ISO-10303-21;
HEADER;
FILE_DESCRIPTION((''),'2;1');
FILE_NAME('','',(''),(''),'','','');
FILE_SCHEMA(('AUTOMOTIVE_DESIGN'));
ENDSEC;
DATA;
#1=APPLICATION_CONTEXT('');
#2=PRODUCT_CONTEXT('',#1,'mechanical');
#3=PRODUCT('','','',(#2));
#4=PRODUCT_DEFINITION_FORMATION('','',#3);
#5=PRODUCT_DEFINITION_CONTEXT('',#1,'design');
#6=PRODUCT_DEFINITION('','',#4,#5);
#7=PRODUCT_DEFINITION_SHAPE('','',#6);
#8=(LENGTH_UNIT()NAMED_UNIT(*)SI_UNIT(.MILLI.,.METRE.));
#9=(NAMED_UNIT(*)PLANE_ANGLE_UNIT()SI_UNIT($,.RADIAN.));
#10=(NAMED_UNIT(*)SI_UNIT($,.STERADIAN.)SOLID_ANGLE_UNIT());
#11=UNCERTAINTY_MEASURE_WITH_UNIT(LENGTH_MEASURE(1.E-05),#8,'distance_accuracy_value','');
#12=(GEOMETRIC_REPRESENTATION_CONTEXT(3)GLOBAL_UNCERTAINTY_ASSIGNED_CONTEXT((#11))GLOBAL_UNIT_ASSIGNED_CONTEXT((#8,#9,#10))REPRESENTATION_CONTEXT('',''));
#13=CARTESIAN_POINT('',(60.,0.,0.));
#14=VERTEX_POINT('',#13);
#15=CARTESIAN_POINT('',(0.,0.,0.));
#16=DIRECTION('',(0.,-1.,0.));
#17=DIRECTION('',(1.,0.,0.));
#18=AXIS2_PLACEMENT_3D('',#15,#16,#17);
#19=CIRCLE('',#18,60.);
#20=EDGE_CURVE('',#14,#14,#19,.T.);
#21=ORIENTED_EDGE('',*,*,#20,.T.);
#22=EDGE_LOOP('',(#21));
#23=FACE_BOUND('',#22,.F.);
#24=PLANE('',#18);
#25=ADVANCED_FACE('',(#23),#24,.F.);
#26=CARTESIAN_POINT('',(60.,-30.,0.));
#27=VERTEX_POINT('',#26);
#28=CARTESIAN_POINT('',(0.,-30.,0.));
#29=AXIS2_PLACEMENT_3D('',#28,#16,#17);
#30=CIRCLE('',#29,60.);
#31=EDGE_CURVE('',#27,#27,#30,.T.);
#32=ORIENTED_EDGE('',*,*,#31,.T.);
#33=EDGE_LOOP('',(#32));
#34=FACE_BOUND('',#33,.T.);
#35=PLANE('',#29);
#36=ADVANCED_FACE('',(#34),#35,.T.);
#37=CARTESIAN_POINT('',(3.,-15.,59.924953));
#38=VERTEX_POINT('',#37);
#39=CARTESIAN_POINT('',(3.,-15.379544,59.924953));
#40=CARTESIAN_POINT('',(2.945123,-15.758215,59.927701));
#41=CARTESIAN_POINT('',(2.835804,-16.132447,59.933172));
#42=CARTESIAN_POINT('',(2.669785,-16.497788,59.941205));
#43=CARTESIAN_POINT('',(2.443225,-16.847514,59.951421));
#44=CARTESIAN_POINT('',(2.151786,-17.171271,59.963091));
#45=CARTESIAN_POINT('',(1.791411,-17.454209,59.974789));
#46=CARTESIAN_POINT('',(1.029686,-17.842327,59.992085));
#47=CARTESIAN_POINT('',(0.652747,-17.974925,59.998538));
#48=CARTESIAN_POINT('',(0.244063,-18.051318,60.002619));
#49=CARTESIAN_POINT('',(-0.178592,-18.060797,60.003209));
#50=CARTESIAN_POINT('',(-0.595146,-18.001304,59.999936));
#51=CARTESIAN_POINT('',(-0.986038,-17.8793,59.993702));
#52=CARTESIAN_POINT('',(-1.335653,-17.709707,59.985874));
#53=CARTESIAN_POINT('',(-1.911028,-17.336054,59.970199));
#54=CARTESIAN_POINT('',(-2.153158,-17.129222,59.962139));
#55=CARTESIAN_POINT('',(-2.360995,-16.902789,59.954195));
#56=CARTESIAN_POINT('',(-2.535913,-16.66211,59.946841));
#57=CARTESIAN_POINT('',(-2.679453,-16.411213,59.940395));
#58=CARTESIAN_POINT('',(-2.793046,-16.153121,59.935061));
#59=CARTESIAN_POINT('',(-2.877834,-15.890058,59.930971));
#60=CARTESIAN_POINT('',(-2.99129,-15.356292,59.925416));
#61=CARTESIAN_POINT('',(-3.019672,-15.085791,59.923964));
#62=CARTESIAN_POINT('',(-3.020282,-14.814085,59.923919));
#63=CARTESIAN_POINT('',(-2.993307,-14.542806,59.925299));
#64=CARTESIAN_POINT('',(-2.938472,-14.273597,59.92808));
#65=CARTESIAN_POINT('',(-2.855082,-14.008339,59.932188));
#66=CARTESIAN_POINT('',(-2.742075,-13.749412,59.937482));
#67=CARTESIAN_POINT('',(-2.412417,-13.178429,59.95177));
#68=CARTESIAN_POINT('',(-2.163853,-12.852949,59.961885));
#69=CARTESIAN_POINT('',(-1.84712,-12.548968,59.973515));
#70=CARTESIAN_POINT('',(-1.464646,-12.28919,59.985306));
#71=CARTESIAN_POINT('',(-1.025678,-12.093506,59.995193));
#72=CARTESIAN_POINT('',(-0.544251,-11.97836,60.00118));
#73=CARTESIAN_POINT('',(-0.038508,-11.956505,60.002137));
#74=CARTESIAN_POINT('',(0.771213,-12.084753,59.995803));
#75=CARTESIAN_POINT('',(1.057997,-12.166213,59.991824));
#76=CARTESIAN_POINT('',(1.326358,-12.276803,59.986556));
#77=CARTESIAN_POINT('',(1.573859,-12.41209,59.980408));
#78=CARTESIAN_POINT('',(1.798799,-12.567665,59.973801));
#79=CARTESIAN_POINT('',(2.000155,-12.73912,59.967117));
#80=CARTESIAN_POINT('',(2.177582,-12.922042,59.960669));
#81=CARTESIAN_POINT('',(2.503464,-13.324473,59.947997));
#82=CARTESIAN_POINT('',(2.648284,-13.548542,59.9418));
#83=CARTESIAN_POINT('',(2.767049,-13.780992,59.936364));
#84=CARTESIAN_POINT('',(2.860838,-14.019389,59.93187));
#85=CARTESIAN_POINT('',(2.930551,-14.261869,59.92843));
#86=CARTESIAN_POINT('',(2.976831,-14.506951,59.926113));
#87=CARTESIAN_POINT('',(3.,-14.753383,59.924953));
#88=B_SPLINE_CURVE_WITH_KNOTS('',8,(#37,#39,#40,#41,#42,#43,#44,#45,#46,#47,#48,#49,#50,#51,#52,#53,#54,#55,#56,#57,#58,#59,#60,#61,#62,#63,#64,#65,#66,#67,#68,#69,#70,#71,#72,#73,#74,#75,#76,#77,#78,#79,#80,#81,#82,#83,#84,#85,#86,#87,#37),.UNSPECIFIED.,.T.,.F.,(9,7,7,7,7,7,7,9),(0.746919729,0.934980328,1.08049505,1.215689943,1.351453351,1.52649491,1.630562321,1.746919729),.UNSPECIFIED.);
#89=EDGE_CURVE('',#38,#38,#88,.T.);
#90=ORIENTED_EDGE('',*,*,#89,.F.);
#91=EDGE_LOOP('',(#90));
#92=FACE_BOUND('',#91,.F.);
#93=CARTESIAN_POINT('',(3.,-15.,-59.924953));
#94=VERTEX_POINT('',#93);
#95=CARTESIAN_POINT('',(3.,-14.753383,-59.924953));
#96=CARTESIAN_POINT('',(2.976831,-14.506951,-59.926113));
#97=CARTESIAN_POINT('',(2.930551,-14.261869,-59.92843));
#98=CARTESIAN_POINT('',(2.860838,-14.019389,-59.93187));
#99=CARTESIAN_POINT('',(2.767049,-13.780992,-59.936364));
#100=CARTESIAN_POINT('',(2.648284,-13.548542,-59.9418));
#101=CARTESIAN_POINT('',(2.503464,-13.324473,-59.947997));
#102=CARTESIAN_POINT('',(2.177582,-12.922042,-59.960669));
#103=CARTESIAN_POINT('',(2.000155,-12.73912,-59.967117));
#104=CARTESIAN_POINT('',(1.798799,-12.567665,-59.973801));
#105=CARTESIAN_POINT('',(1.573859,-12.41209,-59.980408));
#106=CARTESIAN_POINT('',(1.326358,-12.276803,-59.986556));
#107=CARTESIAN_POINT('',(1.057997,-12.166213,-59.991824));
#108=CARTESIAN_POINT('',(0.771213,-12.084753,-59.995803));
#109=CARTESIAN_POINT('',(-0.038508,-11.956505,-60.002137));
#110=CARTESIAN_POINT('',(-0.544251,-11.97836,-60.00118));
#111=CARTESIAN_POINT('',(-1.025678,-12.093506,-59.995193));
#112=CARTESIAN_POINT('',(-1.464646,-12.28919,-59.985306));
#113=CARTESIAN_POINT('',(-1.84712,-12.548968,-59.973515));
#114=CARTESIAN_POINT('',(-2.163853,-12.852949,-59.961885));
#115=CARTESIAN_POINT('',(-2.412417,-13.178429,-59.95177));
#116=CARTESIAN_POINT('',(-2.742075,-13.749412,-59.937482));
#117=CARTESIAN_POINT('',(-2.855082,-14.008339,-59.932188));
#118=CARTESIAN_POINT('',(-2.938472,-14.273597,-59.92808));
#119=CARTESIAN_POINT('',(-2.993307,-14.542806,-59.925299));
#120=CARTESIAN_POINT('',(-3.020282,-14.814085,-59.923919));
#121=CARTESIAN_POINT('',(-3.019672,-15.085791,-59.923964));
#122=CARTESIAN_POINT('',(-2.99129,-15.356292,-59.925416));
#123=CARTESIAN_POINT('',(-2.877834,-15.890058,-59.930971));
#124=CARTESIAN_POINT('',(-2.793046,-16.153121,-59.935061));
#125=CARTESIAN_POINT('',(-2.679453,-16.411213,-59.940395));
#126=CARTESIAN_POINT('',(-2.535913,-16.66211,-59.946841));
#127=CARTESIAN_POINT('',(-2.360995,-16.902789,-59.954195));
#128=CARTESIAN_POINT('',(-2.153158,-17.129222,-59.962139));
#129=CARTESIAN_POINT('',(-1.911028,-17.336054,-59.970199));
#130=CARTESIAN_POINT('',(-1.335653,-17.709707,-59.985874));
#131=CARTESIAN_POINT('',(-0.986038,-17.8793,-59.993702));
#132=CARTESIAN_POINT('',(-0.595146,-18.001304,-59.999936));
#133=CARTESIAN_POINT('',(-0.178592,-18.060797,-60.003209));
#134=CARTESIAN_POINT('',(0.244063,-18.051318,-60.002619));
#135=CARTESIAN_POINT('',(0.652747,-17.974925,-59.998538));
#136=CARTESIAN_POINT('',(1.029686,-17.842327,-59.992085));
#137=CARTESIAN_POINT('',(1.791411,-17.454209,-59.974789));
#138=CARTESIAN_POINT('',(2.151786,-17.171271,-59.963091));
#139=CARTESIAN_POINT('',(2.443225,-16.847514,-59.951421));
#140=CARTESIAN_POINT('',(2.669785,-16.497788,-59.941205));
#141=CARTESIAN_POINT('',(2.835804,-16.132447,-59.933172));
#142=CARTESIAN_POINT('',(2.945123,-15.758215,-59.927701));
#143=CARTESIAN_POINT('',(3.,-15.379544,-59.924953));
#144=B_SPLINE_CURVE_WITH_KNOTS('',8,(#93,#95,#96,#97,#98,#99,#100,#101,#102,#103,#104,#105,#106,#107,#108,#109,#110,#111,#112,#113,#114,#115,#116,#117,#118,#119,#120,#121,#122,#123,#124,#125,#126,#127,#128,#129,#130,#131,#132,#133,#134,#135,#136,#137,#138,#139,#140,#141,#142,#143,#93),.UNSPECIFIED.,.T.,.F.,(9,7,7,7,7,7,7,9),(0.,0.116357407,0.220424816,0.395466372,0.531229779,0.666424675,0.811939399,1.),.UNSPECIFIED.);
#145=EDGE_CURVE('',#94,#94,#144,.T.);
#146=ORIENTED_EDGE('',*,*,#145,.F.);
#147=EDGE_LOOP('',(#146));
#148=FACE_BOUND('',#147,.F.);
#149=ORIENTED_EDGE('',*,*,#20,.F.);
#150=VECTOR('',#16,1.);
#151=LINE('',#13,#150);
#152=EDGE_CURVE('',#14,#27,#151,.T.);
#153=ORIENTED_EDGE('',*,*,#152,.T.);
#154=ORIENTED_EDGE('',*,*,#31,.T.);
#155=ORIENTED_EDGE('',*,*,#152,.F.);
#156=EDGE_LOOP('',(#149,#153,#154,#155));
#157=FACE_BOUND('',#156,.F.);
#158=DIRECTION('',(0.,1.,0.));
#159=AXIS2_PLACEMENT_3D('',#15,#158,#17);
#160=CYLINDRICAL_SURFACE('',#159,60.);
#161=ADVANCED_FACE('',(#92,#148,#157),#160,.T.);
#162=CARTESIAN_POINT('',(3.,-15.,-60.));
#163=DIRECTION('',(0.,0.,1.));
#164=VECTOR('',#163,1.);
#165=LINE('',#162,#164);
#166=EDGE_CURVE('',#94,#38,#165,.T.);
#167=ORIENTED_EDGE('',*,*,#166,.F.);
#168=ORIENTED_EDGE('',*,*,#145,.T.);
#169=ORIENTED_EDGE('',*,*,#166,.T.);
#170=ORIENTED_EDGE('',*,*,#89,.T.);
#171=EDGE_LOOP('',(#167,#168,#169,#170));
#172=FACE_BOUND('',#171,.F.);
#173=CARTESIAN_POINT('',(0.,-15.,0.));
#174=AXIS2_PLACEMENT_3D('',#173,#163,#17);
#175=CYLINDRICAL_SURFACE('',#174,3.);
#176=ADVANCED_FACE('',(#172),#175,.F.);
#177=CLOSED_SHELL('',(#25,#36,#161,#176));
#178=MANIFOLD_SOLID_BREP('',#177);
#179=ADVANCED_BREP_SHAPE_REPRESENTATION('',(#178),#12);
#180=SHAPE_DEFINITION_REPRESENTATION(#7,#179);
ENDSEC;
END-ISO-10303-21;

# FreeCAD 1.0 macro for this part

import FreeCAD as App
import Part
import Sketcher
from FreeCAD import Vector
Q = App.Units.Quantity

doc = App.newDocument("Part")
body = doc.addObject("PartDesign::Body", "Body")

sketch1 = doc.addObject("Sketcher::SketchObject", "Sketch")
body.addObject(sketch1)
sketch1.AttachmentSupport = (doc.XZ_Plane, [""])
sketch1.MapMode = "FlatFace"
sketch1.addGeometry(Part.Circle(Vector(0, 0, 0), Vector(0, 0, 1), 60), False)
sketch1.addConstraint(Sketcher.Constraint("Coincident", 0, 3, -1, 1))
sketch1.addConstraint(Sketcher.Constraint("Diameter", 0, Q("120 mm")))
pad1 = doc.addObject("PartDesign::Pad", "Pad")
body.addObject(pad1)
pad1.Profile = sketch1
pad1.Length = 30

sketch2 = doc.addObject("Sketcher::SketchObject", "Sketch001")
body.addObject(sketch2)
sketch2.AttachmentSupport = (doc.XY_Plane, [""])
sketch2.MapMode = "FlatFace"
sketch2.addGeometry(Part.Circle(Vector(0, -15, 0), Vector(0, 0, 1), 3), False)
sketch2.addConstraint(Sketcher.Constraint("PointOnObject", 0, 3, -2))
sketch2.addConstraint(Sketcher.Constraint("Diameter", 0, Q("6 mm")))
sketch2.addConstraint(Sketcher.Constraint("DistanceY", 0, 3, -1, 1, Q("15 mm")))
pocket1 = doc.addObject("PartDesign::Pocket", "Pocket")
body.addObject(pocket1)
pocket1.Profile = sketch2
pocket1.Length = 120
pocket1.Midplane = True

doc.recompute()
